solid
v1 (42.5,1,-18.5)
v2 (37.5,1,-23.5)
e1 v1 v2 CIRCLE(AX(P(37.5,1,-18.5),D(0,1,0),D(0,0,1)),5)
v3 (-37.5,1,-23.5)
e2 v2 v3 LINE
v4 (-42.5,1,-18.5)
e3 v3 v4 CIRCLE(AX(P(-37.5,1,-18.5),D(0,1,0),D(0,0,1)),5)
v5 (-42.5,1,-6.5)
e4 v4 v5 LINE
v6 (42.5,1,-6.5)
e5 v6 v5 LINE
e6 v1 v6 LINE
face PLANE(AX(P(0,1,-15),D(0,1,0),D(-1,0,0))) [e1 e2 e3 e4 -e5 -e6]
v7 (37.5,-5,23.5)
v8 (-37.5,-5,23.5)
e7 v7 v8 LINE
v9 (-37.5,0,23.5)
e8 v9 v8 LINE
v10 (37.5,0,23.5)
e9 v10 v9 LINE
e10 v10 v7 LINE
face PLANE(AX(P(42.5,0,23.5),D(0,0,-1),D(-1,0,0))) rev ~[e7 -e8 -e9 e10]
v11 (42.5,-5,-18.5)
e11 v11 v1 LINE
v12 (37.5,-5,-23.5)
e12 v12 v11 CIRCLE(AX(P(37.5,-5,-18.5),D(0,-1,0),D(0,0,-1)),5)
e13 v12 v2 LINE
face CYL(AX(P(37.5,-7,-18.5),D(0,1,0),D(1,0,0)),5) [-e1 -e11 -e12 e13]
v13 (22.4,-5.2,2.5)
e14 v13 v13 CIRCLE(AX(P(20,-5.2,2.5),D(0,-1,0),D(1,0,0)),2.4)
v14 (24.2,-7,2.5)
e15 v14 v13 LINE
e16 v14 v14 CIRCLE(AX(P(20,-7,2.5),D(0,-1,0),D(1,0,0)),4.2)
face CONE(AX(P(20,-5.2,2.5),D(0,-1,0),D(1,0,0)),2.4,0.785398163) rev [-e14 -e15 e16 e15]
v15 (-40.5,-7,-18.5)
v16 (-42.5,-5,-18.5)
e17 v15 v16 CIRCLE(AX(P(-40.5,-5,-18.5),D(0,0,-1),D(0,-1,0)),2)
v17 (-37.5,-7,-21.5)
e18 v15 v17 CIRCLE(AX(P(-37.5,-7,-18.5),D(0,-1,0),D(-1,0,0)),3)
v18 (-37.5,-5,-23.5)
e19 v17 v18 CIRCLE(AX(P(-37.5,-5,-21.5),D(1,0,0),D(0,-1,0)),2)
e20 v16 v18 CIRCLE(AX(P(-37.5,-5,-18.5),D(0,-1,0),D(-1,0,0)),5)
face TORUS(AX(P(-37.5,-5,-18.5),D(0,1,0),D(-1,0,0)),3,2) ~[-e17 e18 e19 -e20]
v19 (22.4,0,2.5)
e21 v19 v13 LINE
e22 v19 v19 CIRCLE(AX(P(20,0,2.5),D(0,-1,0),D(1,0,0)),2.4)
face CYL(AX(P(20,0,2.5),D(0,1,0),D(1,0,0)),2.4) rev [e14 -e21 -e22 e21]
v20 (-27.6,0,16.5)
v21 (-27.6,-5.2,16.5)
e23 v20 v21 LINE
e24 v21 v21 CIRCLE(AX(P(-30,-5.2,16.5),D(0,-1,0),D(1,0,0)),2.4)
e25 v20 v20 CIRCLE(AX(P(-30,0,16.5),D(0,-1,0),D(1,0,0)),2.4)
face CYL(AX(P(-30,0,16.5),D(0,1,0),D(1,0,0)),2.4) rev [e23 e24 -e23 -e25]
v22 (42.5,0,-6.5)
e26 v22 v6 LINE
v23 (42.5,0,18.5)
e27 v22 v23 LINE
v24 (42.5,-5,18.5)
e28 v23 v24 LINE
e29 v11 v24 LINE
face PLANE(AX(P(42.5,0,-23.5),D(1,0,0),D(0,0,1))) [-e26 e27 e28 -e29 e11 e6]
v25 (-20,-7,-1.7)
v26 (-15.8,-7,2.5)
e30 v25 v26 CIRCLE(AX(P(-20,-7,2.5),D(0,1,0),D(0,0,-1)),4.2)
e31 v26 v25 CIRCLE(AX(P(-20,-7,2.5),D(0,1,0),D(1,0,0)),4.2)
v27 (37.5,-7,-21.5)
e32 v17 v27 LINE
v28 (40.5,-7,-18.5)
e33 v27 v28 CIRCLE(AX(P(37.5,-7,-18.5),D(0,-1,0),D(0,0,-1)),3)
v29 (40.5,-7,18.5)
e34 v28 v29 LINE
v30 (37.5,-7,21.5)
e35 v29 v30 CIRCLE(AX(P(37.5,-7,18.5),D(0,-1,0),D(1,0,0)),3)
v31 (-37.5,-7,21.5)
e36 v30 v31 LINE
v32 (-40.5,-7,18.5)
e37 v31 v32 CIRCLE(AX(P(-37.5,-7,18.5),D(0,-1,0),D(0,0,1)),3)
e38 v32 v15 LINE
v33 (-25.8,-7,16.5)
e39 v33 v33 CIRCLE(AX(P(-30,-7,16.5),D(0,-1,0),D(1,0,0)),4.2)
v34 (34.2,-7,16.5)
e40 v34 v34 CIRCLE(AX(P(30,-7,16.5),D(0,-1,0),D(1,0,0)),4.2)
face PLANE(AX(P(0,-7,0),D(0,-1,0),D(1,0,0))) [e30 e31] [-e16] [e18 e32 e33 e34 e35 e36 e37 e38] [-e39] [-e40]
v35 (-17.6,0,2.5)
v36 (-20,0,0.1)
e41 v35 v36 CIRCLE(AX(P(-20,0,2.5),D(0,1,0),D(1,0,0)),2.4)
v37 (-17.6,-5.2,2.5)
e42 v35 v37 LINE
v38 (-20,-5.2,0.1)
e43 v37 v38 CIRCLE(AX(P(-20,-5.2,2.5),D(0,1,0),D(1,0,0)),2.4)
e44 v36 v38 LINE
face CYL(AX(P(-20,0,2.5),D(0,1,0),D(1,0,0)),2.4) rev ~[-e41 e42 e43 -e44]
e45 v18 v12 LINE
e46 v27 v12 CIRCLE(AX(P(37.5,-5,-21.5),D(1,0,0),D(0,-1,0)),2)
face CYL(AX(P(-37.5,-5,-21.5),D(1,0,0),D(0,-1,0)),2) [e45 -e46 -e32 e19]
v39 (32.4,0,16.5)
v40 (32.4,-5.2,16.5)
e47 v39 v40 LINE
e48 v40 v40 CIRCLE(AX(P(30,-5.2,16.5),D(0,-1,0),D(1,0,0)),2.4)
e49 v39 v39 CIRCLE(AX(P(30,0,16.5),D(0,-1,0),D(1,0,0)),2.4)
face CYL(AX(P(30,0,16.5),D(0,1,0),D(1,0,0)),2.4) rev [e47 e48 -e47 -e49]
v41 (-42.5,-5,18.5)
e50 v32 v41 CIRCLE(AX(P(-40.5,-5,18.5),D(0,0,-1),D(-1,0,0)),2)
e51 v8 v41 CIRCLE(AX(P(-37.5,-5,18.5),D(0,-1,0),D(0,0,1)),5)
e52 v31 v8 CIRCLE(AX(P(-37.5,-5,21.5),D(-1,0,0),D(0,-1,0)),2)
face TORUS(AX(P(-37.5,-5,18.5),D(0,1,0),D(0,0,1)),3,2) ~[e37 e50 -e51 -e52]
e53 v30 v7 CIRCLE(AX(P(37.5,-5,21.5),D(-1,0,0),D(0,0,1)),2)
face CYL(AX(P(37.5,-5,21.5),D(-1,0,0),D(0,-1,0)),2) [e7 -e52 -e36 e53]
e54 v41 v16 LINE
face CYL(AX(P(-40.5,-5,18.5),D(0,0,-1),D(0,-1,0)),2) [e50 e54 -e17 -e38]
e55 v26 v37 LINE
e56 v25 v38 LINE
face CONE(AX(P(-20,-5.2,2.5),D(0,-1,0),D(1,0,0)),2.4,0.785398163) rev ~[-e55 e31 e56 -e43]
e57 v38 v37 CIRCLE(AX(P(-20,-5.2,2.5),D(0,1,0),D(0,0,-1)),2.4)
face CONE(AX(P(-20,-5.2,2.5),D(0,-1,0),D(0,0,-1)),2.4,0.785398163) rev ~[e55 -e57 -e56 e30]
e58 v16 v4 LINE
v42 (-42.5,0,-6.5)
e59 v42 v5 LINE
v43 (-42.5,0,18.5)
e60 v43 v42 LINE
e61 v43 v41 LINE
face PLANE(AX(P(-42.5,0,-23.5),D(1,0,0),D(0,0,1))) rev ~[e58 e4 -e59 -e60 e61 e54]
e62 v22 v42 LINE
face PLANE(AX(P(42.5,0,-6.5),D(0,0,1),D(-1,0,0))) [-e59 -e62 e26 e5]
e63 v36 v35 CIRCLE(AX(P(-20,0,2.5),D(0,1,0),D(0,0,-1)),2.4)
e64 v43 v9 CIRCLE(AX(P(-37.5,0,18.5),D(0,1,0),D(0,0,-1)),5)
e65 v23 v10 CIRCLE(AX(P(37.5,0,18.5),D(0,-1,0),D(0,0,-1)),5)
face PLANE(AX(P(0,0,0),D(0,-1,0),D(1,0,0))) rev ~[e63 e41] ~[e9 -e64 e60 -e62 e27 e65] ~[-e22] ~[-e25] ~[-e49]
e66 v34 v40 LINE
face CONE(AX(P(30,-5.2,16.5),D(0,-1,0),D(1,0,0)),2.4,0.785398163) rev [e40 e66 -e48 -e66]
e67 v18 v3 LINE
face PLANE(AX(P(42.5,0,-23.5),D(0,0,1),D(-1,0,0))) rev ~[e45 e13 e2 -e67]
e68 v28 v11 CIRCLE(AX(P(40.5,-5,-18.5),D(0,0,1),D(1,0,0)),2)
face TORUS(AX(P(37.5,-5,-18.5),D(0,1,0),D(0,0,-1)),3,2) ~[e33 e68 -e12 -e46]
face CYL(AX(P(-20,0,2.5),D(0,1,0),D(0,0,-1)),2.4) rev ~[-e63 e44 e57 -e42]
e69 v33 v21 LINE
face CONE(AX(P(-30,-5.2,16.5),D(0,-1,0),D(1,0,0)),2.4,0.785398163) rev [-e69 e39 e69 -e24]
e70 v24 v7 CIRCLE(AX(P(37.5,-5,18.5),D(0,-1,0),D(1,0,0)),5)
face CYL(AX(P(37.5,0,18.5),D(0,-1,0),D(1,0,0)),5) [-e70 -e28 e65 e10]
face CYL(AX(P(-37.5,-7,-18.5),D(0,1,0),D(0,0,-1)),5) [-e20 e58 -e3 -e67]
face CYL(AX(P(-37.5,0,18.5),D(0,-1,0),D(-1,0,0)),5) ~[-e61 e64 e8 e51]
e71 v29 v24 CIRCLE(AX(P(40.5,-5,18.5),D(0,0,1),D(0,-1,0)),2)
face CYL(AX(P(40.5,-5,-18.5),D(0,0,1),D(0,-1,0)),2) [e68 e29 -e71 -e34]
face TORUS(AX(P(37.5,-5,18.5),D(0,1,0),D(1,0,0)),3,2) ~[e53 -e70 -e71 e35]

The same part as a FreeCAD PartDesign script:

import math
import FreeCAD as App
import Part
import Sketcher

V = App.Vector
Q = App.Units.Quantity


def edges_at(feature, points):
    """Names of the edges that pass closest to the given points."""
    edges = feature.Shape.Edges
    near = lambda p: min(range(len(edges)), key=lambda i: edges[i].distToShape(Part.Vertex(*p))[0])
    return sorted({f"Edge{near(p) + 1}" for p in points})

doc = App.newDocument("Part")
params = doc.addObject("Spreadsheet::Sheet", "Params")
for row, (alias, value) in enumerate([
    ("sketch1_diameter", "4.8 mm"),
    ("sketch1_width", "85 mm"),
    ("sketch1_height", "47 mm"),
    ("pad1_length", "7 mm"),
    ("sketch2_width", "85 mm"),
    ("sketch2_height", "17 mm"),
    ("pad2_length", "1 mm"),
    ("fillet_radius", "5 mm"),
    ("fillet2_radius", "2 mm"),
    ("chamfer_size", "1.8 mm"),
], start=1):
    params.set(f"A{row}", alias)
    params.set(f"B{row}", "=" + value)
    params.setAlias(f"B{row}", alias)

body = doc.addObject("PartDesign::Body", "Body")

sketch1 = body.newObject("Sketcher::SketchObject", "Sketch")
sketch1.AttachmentSupport = (doc.getObject("XZ_Plane"), [""])
sketch1.MapMode = "FlatFace"
sketch1.addGeometry(Part.LineSegment(V(42.5, -23.5, 0), V(42.5, 23.5, 0)), False)
sketch1.addGeometry(Part.LineSegment(V(42.5, 23.5, 0), V(-42.5, 23.5, 0)), False)
sketch1.addGeometry(Part.LineSegment(V(-42.5, 23.5, 0), V(-42.5, -23.5, 0)), False)
sketch1.addGeometry(Part.LineSegment(V(-42.5, -23.5, 0), V(42.5, -23.5, 0)), False)
sketch1.addGeometry(Part.ArcOfCircle(Part.Circle(V(-20, 2.5, 0), V(0, 0, 1), 2.4), math.radians(0), math.radians(270)), False)
sketch1.addGeometry(Part.ArcOfCircle(Part.Circle(V(-20, 2.5, 0), V(0, 0, 1), 2.4), math.radians(-90), math.radians(0)), False)
sketch1.addGeometry(Part.Circle(V(20, 2.5, 0), V(0, 0, 1), 2.4), False)
sketch1.addGeometry(Part.Circle(V(-30, 16.5, 0), V(0, 0, 1), 2.4), False)
sketch1.addGeometry(Part.Circle(V(30, 16.5, 0), V(0, 0, 1), 2.4), False)
sketch1.addConstraint(Sketcher.Constraint("Coincident", 0, 2, 1, 1))
sketch1.addConstraint(Sketcher.Constraint("Coincident", 1, 2, 2, 1))
sketch1.addConstraint(Sketcher.Constraint("Coincident", 2, 2, 3, 1))
sketch1.addConstraint(Sketcher.Constraint("Coincident", 3, 2, 0, 1))
sketch1.addConstraint(Sketcher.Constraint("Tangent", 4, 1, 5, 2))
sketch1.addConstraint(Sketcher.Constraint("Coincident", 5, 1, 4, 2))
sketch1.addConstraint(Sketcher.Constraint("Vertical", 0))
sketch1.addConstraint(Sketcher.Constraint("Horizontal", 1))
sketch1.addConstraint(Sketcher.Constraint("Vertical", 2))
sketch1.addConstraint(Sketcher.Constraint("Horizontal", 3))
sketch1.addConstraint(Sketcher.Constraint("Equal", 5, 6))
sketch1.addConstraint(Sketcher.Constraint("Equal", 6, 7))
sketch1.addConstraint(Sketcher.Constraint("Equal", 7, 8))
sketch1.addConstraint(Sketcher.Constraint("Symmetric", 0, 2, 2, 2, -1, 1))
sketch1.addConstraint(Sketcher.Constraint("Symmetric", 4, 3, 6, 3, -2))
sketch1.addConstraint(Sketcher.Constraint("Symmetric", 7, 3, 8, 3, -2))
sketch1.addConstraint(Sketcher.Constraint("Horizontal", 6, 3, 4, 1))
sketch1.addConstraint(Sketcher.Constraint("Vertical", 4, 3, 5, 1))
sketch1.addConstraint(Sketcher.Constraint("Diameter", 6, Q("4.8 mm")))
sketch1.addConstraint(Sketcher.Constraint("DistanceX", 1, 2, 1, 1, Q("85 mm")))
sketch1.addConstraint(Sketcher.Constraint("DistanceY", 0, 1, 0, 2, Q("47 mm")))
sketch1.addConstraint(Sketcher.Constraint("DistanceX", 4, 3, -1, 1, Q("20 mm")))
sketch1.addConstraint(Sketcher.Constraint("DistanceX", 7, 3, -1, 1, Q("30 mm")))
sketch1.addConstraint(Sketcher.Constraint("DistanceY", 4, 3, 7, 3, Q("14 mm")))
sketch1.addConstraint(Sketcher.Constraint("DistanceY", 8, 3, 0, 2, Q("7 mm")))
sketch1.setExpression("Constraints[18]", "Params.sketch1_diameter")
sketch1.setExpression("Constraints[19]", "Params.sketch1_width")
sketch1.setExpression("Constraints[20]", "Params.sketch1_height")
pad1 = body.newObject("PartDesign::Pad", "Pad")
pad1.Profile = sketch1
pad1.setExpression("Length", "Params.pad1_length")

sketch2 = body.newObject("Sketcher::SketchObject", "Sketch001")
sketch2.AttachmentSupport = (doc.getObject("XZ_Plane"), [""])
sketch2.MapMode = "FlatFace"
sketch2.addGeometry(Part.LineSegment(V(42, -6, 0), V(42, -24, 0)), False)
sketch2.addGeometry(Part.LineSegment(V(42, -24, 0), V(-42, -24, 0)), False)
sketch2.addGeometry(Part.LineSegment(V(-42, -24, 0), V(-42, -6, 0)), False)
sketch2.addGeometry(Part.LineSegment(V(-42, -6, 0), V(42, -6, 0)), False)
sketch2.addConstraint(Sketcher.Constraint("Coincident", 0, 2, 1, 1))
sketch2.addConstraint(Sketcher.Constraint("Coincident", 1, 2, 2, 1))
sketch2.addConstraint(Sketcher.Constraint("Coincident", 2, 2, 3, 1))
sketch2.addConstraint(Sketcher.Constraint("Coincident", 3, 2, 0, 1))
sketch2.addConstraint(Sketcher.Constraint("Vertical", 0))
sketch2.addConstraint(Sketcher.Constraint("Horizontal", 1))
sketch2.addConstraint(Sketcher.Constraint("Vertical", 2))
sketch2.addConstraint(Sketcher.Constraint("Horizontal", 3))
sketch2.addConstraint(Sketcher.Constraint("DistanceX", 1, 2, 1, 1, Q("85 mm")))
sketch2.addConstraint(Sketcher.Constraint("DistanceY", 0, 2, 0, 1, Q("17 mm")))
sketch2.addConstraint(Sketcher.Constraint("DistanceX", -1, 1, 0, 2, Q("42.5 mm")))
sketch2.addConstraint(Sketcher.Constraint("DistanceY", 0, 2, -1, 1, Q("23.5 mm")))
sketch2.setExpression("Constraints[8]", "Params.sketch2_width")
sketch2.setExpression("Constraints[9]", "Params.sketch2_height")
pad2 = body.newObject("PartDesign::Pad", "Pad001")
pad2.Profile = sketch2
pad2.setExpression("Length", "Params.pad2_length")
pad2.Reversed = True
doc.recompute()

fillet = body.newObject("PartDesign::Fillet", "Fillet")
fillet.Base = (pad2, edges_at(pad2, [
    (42.5, -3.5, 23.5),
    (-42.5, -3.5, 23.5),
    (42.5, -3, -23.5),
    (-42.5, -3, -23.5),
]))
fillet.setExpression("Radius", "Params.fillet_radius")
doc.recompute()

fillet2 = body.newObject("PartDesign::Fillet", "Fillet001")
fillet2.Base = (fillet, edges_at(fillet, [(0, -7, -23.5)]))
fillet2.setExpression("Radius", "Params.fillet2_radius")
doc.recompute()

chamfer = body.newObject("PartDesign::Chamfer", "Chamfer")
chamfer.Base = (fillet2, edges_at(fillet2, [
    (17.6, -7, 2.5),
    (27.6, -7, 16.5),
    (-21.697, -7, 4.197),
    (-32.4, -7, 16.5),
]))
chamfer.setExpression("Size", "Params.chamfer_size")

doc.recompute()
